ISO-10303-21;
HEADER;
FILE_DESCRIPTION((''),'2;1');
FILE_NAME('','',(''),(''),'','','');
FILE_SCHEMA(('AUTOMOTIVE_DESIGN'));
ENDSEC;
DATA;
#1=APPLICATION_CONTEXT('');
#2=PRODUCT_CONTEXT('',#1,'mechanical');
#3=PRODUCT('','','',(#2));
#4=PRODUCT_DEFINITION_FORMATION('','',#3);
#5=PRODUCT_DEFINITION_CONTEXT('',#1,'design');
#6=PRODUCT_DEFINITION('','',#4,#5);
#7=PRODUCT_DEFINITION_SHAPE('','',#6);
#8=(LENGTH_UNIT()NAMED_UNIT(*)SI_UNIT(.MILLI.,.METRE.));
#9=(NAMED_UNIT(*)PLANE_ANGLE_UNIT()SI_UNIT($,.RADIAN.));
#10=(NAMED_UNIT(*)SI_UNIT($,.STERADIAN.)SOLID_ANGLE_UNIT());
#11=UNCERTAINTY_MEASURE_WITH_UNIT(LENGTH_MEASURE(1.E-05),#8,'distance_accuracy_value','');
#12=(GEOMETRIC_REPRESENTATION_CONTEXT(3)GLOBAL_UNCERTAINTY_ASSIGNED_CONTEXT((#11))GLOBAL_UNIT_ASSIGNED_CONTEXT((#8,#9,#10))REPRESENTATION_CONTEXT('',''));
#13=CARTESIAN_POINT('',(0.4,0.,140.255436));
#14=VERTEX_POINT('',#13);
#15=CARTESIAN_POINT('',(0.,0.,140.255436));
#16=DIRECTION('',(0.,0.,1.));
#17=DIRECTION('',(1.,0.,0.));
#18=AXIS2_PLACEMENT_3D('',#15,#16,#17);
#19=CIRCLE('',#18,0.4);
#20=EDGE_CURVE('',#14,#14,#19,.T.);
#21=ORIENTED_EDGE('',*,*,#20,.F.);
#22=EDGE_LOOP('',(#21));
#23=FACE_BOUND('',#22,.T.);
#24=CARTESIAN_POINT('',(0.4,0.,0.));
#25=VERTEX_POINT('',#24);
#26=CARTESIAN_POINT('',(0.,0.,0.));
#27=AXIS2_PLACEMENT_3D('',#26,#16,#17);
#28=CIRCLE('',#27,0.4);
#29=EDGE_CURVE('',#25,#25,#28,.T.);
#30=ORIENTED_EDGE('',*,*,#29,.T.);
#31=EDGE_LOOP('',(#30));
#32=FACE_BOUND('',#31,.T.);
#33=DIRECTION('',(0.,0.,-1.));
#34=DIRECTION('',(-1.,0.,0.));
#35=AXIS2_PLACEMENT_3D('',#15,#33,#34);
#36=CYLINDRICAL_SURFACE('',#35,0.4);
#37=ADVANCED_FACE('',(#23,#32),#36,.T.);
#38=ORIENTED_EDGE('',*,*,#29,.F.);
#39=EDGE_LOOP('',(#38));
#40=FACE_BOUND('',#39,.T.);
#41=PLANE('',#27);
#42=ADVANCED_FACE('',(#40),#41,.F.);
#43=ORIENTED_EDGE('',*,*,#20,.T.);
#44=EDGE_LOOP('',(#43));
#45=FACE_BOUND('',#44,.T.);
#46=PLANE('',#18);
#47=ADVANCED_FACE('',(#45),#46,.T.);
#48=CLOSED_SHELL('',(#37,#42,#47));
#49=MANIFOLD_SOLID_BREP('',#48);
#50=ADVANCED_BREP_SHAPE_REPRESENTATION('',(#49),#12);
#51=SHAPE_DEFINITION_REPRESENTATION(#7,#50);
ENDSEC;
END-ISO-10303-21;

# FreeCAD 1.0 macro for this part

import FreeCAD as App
import Part
import Sketcher

V = App.Vector

doc = App.newDocument("Part")
body = doc.addObject("PartDesign::Body", "Body")

# Sketch on XY plane
sketch1 = doc.addObject("Sketcher::SketchObject", "Sketch")
body.addObject(sketch1)
sketch1.AttachmentSupport = (doc.XY_Plane, [""])
sketch1.MapMode = "FlatFace"
sketch1.addGeometry(Part.Circle(V(0, 0, 0), V(0, 0, 1), 0.4), False)
sketch1.addConstraint(Sketcher.Constraint("Coincident", 0, 3, -1, 1))
sketch1.addConstraint(Sketcher.Constraint("Diameter", 0, 0.8))
pad1 = doc.addObject("PartDesign::Pad", "Pad")
body.addObject(pad1)
pad1.Profile = sketch1
pad1.Length = 140.255436

doc.recompute()
